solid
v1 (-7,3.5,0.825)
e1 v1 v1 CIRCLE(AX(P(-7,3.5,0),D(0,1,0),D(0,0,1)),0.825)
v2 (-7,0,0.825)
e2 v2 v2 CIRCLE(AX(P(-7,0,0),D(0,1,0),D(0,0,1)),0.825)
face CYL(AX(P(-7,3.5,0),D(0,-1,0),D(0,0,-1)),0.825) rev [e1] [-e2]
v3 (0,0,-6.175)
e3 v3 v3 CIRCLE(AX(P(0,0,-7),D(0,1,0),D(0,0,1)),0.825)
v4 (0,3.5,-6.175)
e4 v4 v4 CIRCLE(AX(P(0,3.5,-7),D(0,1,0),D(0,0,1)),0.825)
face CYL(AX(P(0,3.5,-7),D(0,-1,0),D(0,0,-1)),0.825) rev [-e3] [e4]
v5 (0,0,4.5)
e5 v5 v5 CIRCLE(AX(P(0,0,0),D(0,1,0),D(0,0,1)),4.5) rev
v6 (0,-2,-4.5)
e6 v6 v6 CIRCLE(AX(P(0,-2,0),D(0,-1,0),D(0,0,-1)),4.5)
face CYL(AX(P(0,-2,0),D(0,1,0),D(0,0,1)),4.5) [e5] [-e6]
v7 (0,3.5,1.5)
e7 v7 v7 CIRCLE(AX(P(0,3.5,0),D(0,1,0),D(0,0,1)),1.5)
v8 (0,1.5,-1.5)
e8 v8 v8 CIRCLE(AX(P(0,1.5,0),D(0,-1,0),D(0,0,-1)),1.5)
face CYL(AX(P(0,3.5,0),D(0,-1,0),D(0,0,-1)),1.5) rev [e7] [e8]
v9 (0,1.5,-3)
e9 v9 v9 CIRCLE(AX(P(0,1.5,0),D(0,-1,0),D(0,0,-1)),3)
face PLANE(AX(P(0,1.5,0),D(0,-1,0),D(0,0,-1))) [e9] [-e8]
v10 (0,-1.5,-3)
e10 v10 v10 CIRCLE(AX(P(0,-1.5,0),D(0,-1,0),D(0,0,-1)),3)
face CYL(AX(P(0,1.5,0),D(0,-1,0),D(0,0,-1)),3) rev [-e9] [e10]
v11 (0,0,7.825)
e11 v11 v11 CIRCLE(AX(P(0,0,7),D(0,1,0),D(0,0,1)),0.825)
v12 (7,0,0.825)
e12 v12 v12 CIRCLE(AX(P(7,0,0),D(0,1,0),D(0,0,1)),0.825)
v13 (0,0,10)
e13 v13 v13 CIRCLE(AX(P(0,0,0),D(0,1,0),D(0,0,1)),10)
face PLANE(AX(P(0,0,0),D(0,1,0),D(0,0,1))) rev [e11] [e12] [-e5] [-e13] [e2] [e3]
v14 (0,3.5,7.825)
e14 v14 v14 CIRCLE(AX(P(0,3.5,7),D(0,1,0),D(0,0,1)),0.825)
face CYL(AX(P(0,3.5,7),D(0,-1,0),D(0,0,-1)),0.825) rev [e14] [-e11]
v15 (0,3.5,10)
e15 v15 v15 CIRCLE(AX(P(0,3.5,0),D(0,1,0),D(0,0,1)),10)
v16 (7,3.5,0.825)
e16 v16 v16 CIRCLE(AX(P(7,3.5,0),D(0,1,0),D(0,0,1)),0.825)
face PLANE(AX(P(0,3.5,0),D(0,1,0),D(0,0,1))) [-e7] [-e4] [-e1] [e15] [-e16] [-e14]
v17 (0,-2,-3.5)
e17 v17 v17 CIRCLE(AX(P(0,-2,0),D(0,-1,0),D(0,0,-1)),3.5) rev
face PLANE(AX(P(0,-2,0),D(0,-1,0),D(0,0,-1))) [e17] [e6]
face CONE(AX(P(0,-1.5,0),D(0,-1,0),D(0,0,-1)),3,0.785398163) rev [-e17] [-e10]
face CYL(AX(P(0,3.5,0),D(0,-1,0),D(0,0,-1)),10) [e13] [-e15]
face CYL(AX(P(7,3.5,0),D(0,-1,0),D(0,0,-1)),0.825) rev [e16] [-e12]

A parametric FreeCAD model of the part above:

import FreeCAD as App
import Part
import Sketcher

V = App.Vector


def edges_at(feature, points):
    """Names of the edges that pass closest to the given points."""
    edges = feature.Shape.Edges
    near = lambda p: min(range(len(edges)), key=lambda i: edges[i].distToShape(Part.Vertex(*p))[0])
    return sorted({f"Edge{near(p) + 1}" for p in points})

doc = App.newDocument("Part")
body = doc.addObject("PartDesign::Body", "Body")

# Sketch on XZ plane
sketch1 = body.newObject("Sketcher::SketchObject", "Sketch")
sketch1.AttachmentSupport = (doc.getObject("XZ_Plane"), [""])
sketch1.MapMode = "FlatFace"
sketch1.addGeometry([
    Part.Circle(V(0, 0, 0), V(0, 0, 1), 10),  # 0
    Part.Circle(V(0, -7, 0), V(0, 0, 1), 0.825),  # 1
    Part.Circle(V(-7, 0, 0), V(0, 0, 1), 0.825),  # 2
    Part.Circle(V(0, 0, 0), V(0, 0, 1), 1.5),  # 3
    Part.Circle(V(7, 0, 0), V(0, 0, 1), 0.825),  # 4
    Part.Circle(V(0, 7, 0), V(0, 0, 1), 0.825),  # 5
], False)
sketch1.addConstraint([
    Sketcher.Constraint("Coincident", 0, 3, -1, 1),
    Sketcher.Constraint("Coincident", 3, 3, -1, 1),
    Sketcher.Constraint("Equal", 1, 2),
    Sketcher.Constraint("Equal", 2, 4),
    Sketcher.Constraint("Equal", 4, 5),
    Sketcher.Constraint("Symmetric", 2, 3, 4, 3, -1, 1),
    Sketcher.Constraint("Symmetric", 1, 3, 5, 3, -1, 1),
    Sketcher.Constraint("PointOnObject", 1, 3, -2),
    Sketcher.Constraint("PointOnObject", 2, 3, -1),
    Sketcher.Constraint("Diameter", 0, 20.0),
    Sketcher.Constraint("Diameter", 3, 3.0),
    Sketcher.Constraint("Diameter", 1, 1.65),
    Sketcher.Constraint("DistanceY", 1, 3, -1, 1, 7.0),
    Sketcher.Constraint("DistanceX", 2, 3, -1, 1, 7.0),
])
pad1 = body.newObject("PartDesign::Pad", "Pad")
pad1.Profile = sketch1
pad1.Length = 3.5
pad1.Reversed = True

# Sketch on XZ plane
sketch2 = body.newObject("Sketcher::SketchObject", "Sketch001")
sketch2.AttachmentSupport = (doc.getObject("XZ_Plane"), [""])
sketch2.MapMode = "FlatFace"
sketch2.AttachmentOffset = App.Placement(V(0, 0, 2), App.Rotation())
sketch2.addGeometry([
    Part.Circle(V(0, 0, 0), V(0, 0, 1), 4.5),
    Part.Circle(V(0, 0, 0), V(0, 0, 1), 1.5),
], False)
sketch2.addConstraint([
    Sketcher.Constraint("Coincident", 0, 3, -1, 1),
    Sketcher.Constraint("Coincident", 1, 3, -1, 1),
    Sketcher.Constraint("Diameter", 0, 9.0),
    Sketcher.Constraint("Diameter", 1, 3.0),
])
pad2 = body.newObject("PartDesign::Pad", "Pad001")
pad2.Profile = sketch2
pad2.Length = 2
pad2.Reversed = True

# Sketch on XZ plane
sketch3 = body.newObject("Sketcher::SketchObject", "Sketch002")
sketch3.AttachmentSupport = (doc.getObject("XZ_Plane"), [""])
sketch3.MapMode = "FlatFace"
sketch3.AttachmentOffset = App.Placement(V(0, 0, 2), App.Rotation())
sketch3.addGeometry(Part.Circle(V(0, 0, 0), V(0, 0, 1), 3), False)
sketch3.addConstraint([
    Sketcher.Constraint("Coincident", 0, 3, -1, 1),
    Sketcher.Constraint("Diameter", 0, 6.0),
])
pocket1 = body.newObject("PartDesign::Pocket", "Pocket")
pocket1.Profile = sketch3
pocket1.Length = 3.5
doc.recompute()

chamfer = body.newObject("PartDesign::Chamfer", "Chamfer")
chamfer.Base = (pocket1, edges_at(pocket1, [(0, -2, 3)]))
chamfer.Size = 0.5

doc.recompute()
